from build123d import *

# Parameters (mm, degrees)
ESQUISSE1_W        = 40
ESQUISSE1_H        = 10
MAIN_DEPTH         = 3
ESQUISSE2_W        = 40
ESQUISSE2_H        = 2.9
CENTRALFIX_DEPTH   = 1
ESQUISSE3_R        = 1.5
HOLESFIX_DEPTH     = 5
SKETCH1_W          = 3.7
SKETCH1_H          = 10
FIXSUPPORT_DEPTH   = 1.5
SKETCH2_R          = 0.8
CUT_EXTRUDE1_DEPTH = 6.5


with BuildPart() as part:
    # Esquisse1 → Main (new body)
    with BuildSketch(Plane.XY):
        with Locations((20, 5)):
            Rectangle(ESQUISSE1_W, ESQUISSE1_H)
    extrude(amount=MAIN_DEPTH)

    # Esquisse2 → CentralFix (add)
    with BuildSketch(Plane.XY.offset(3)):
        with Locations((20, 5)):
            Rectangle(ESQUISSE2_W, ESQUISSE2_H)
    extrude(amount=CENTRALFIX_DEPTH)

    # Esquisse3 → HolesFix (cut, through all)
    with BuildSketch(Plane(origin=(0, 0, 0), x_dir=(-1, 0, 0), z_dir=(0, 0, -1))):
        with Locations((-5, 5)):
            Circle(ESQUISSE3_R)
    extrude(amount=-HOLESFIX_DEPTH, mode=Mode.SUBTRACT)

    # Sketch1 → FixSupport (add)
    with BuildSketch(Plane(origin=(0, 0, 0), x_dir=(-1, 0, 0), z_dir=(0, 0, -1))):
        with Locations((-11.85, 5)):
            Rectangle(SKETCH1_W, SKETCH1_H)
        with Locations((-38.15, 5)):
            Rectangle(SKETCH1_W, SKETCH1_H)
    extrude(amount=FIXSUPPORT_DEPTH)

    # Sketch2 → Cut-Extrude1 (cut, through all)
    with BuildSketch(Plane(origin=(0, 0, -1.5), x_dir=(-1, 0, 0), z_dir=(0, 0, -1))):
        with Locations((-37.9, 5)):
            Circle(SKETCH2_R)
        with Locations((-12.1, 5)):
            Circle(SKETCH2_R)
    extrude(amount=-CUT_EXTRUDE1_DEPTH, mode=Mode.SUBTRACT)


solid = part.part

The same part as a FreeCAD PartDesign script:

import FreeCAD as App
import Part
import Sketcher
Q = App.Units.Quantity

doc = App.newDocument("Part")
params = doc.addObject("Spreadsheet::Sheet", "Params")
for row, (alias, value) in enumerate([
    ("sketch1_width", "40 mm"),
    ("sketch1_height", "10 mm"),
    ("pad1_length", "3 mm"),
    ("sketch2_width", "40 mm"),
    ("sketch2_height", "2.9 mm"),
    ("pad2_length", "1 mm"),
    ("sketch3_diameter", "3 mm"),
    ("sketch4_height", "10 mm"),
    ("sketch4_width", "3.7 mm"),
    ("pad3_length", "1.5 mm"),
    ("sketch5_diameter", "1.6 mm"),
], start=1):
    params.set(f"A{row}", alias)
    params.set(f"B{row}", "=" + value)
    params.setAlias(f"B{row}", alias)

body = doc.addObject("PartDesign::Body", "Body")

# Sketch on XY plane
sketch1 = body.newObject("Sketcher::SketchObject", "Sketch")
sketch1.AttachmentSupport = (doc.getObject("XY_Plane"), [""])
sketch1.MapMode = "FlatFace"
sketch1.addGeometry([
    Part.LineSegment(App.Vector(0, 10, 0), App.Vector(0, 0, 0)),
    Part.LineSegment(App.Vector(0, 0, 0), App.Vector(40, 0, 0)),
    Part.LineSegment(App.Vector(40, 0, 0), App.Vector(40, 10, 0)),
    Part.LineSegment(App.Vector(40, 10, 0), App.Vector(0, 10, 0)),
], False)
sketch1.addConstraint([
    Sketcher.Constraint("Coincident", 0, 2, 1, 1),
    Sketcher.Constraint("Coincident", 1, 2, 2, 1),
    Sketcher.Constraint("Coincident", 2, 2, 3, 1),
    Sketcher.Constraint("Coincident", 3, 2, 0, 1),
    Sketcher.Constraint("Vertical", 0),
    Sketcher.Constraint("Horizontal", 1),
    Sketcher.Constraint("Vertical", 2),
    Sketcher.Constraint("Horizontal", 3),
    Sketcher.Constraint("Coincident", 0, 2, -1, 1),
    Sketcher.Constraint("DistanceX", 1, 1, 1, 2, Q("40 mm")),
    Sketcher.Constraint("DistanceY", 0, 2, 0, 1, Q("10 mm")),
])
sketch1.setExpression("Constraints[9]", "Params.sketch1_width")
sketch1.setExpression("Constraints[10]", "Params.sketch1_height")
pad1 = body.newObject("PartDesign::Pad", "Pad")
pad1.Profile = sketch1
pad1.setExpression("Length", "Params.pad1_length")

# Sketch on XY plane
sketch2 = body.newObject("Sketcher::SketchObject", "Sketch001")
sketch2.AttachmentSupport = (doc.getObject("XY_Plane"), [""])
sketch2.MapMode = "FlatFace"
sketch2.AttachmentOffset = App.Placement(App.Vector(0, 0, 3), App.Rotation())
sketch2.addGeometry([
    Part.LineSegment(App.Vector(0, 6.5, 0), App.Vector(0, 3.5, 0)),
    Part.LineSegment(App.Vector(0, 3.5, 0), App.Vector(40, 3.5, 0)),
    Part.LineSegment(App.Vector(40, 3.5, 0), App.Vector(40, 6.5, 0)),
    Part.LineSegment(App.Vector(40, 6.5, 0), App.Vector(0, 6.5, 0)),
], False)
sketch2.addConstraint([
    Sketcher.Constraint("Coincident", 0, 2, 1, 1),
    Sketcher.Constraint("Coincident", 1, 2, 2, 1),
    Sketcher.Constraint("Coincident", 2, 2, 3, 1),
    Sketcher.Constraint("Coincident", 3, 2, 0, 1),
    Sketcher.Constraint("Vertical", 0),
    Sketcher.Constraint("Horizontal", 1),
    Sketcher.Constraint("Vertical", 2),
    Sketcher.Constraint("Horizontal", 3),
    Sketcher.Constraint("PointOnObject", 0, 2, -2),
    Sketcher.Constraint("DistanceX", 1, 1, 1, 2, Q("40 mm")),
    Sketcher.Constraint("DistanceY", 0, 2, 0, 1, Q("2.9 mm")),
    Sketcher.Constraint("DistanceY", -1, 1, 0, 2, Q("3.55 mm")),
])
sketch2.setExpression("Constraints[9]", "Params.sketch2_width")
sketch2.setExpression("Constraints[10]", "Params.sketch2_height")
pad2 = body.newObject("PartDesign::Pad", "Pad001")
pad2.Profile = sketch2
pad2.setExpression("Length", "Params.pad2_length")

# Sketch on XY plane
sketch3 = body.newObject("Sketcher::SketchObject", "Sketch002")
sketch3.AttachmentSupport = (doc.getObject("XY_Plane"), [""])
sketch3.MapMode = "FlatFace"
sketch3.addGeometry(Part.Circle(App.Vector(5, 5, 0), App.Vector(0, 0, 1), 1.5), False)
sketch3.addConstraint([
    Sketcher.Constraint("Diameter", 0, Q("3 mm")),
    Sketcher.Constraint("DistanceX", -1, 1, 0, 3, Q("5 mm")),
    Sketcher.Constraint("DistanceY", -1, 1, 0, 3, Q("5 mm")),
])
sketch3.setExpression("Constraints[0]", "Params.sketch3_diameter")
pocket1 = body.newObject("PartDesign::Pocket", "Pocket")
pocket1.Profile = sketch3
pocket1.Type = "ThroughAll"
pocket1.Reversed = True

# Sketch on XY plane
sketch4 = body.newObject("Sketcher::SketchObject", "Sketch003")
sketch4.AttachmentSupport = (doc.getObject("XY_Plane"), [""])
sketch4.MapMode = "FlatFace"
sketch4.addGeometry([
    Part.LineSegment(App.Vector(13.7, 10, 0), App.Vector(13.7, 0, 0)),  # 0
    Part.LineSegment(App.Vector(13.7, 0, 0), App.Vector(10, 0, 0)),  # 1
    Part.LineSegment(App.Vector(10, 0, 0), App.Vector(10, 10, 0)),  # 2
    Part.LineSegment(App.Vector(10, 10, 0), App.Vector(13.7, 10, 0)),  # 3
    Part.LineSegment(App.Vector(40, 10, 0), App.Vector(40, 0, 0)),  # 4
    Part.LineSegment(App.Vector(40, 0, 0), App.Vector(36.3, 0, 0)),  # 5
    Part.LineSegment(App.Vector(36.3, 0, 0), App.Vector(36.3, 10, 0)),  # 6
    Part.LineSegment(App.Vector(36.3, 10, 0), App.Vector(40, 10, 0)),  # 7
], False)
sketch4.addConstraint([
    Sketcher.Constraint("Coincident", 0, 2, 1, 1),
    Sketcher.Constraint("Coincident", 1, 2, 2, 1),
    Sketcher.Constraint("Coincident", 2, 2, 3, 1),
    Sketcher.Constraint("Coincident", 3, 2, 0, 1),
    Sketcher.Constraint("Coincident", 4, 2, 5, 1),
    Sketcher.Constraint("Coincident", 5, 2, 6, 1),
    Sketcher.Constraint("Coincident", 6, 2, 7, 1),
    Sketcher.Constraint("Coincident", 7, 2, 4, 1),
    Sketcher.Constraint("Vertical", 0),
    Sketcher.Constraint("Horizontal", 1),
    Sketcher.Constraint("Vertical", 2),
    Sketcher.Constraint("Horizontal", 3),
    Sketcher.Constraint("Vertical", 4),
    Sketcher.Constraint("Horizontal", 5),
    Sketcher.Constraint("Vertical", 6),
    Sketcher.Constraint("Horizontal", 7),
    Sketcher.Constraint("PointOnObject", 0, 2, -1),
    Sketcher.Constraint("PointOnObject", 4, 2, -1),
    Sketcher.Constraint("Horizontal", 3, 2, 6, 2),
    Sketcher.Constraint("Equal", 3, 5),
    Sketcher.Constraint("DistanceY", 0, 2, 0, 1, Q("10 mm")),
    Sketcher.Constraint("DistanceX", 1, 2, 1, 1, Q("3.7 mm")),
    Sketcher.Constraint("DistanceX", -1, 1, 1, 2, Q("10 mm")),
    Sketcher.Constraint("DistanceX", -1, 1, 4, 2, Q("40 mm")),
])
sketch4.setExpression("Constraints[20]", "Params.sketch4_height")
sketch4.setExpression("Constraints[21]", "Params.sketch4_width")
pad3 = body.newObject("PartDesign::Pad", "Pad002")
pad3.Profile = sketch4
pad3.setExpression("Length", "Params.pad3_length")
pad3.Reversed = True

# Sketch on XY plane
sketch5 = body.newObject("Sketcher::SketchObject", "Sketch004")
sketch5.AttachmentSupport = (doc.getObject("XY_Plane"), [""])
sketch5.MapMode = "FlatFace"
sketch5.AttachmentOffset = App.Placement(App.Vector(0, 0, -1.5), App.Rotation())
sketch5.addGeometry([
    Part.Circle(App.Vector(37.9, 5, 0), App.Vector(0, 0, 1), 0.8),
    Part.Circle(App.Vector(12.1, 5, 0), App.Vector(0, 0, 1), 0.8),
], False)
sketch5.addConstraint([
    Sketcher.Constraint("Equal", 0, 1),
    Sketcher.Constraint("Horizontal", 0, 3, 1, 3),
    Sketcher.Constraint("Diameter", 0, Q("1.6 mm")),
    Sketcher.Constraint("DistanceY", -1, 1, 0, 3, Q("5 mm")),
    Sketcher.Constraint("DistanceX", -1, 1, 0, 3, Q("37.9 mm")),
    Sketcher.Constraint("DistanceX", -1, 1, 1, 3, Q("12.1 mm")),
])
sketch5.setExpression("Constraints[2]", "Params.sketch5_diameter")
pocket2 = body.newObject("PartDesign::Pocket", "Pocket001")
pocket2.Profile = sketch5
pocket2.Type = "ThroughAll"
pocket2.Reversed = True

doc.recompute()
